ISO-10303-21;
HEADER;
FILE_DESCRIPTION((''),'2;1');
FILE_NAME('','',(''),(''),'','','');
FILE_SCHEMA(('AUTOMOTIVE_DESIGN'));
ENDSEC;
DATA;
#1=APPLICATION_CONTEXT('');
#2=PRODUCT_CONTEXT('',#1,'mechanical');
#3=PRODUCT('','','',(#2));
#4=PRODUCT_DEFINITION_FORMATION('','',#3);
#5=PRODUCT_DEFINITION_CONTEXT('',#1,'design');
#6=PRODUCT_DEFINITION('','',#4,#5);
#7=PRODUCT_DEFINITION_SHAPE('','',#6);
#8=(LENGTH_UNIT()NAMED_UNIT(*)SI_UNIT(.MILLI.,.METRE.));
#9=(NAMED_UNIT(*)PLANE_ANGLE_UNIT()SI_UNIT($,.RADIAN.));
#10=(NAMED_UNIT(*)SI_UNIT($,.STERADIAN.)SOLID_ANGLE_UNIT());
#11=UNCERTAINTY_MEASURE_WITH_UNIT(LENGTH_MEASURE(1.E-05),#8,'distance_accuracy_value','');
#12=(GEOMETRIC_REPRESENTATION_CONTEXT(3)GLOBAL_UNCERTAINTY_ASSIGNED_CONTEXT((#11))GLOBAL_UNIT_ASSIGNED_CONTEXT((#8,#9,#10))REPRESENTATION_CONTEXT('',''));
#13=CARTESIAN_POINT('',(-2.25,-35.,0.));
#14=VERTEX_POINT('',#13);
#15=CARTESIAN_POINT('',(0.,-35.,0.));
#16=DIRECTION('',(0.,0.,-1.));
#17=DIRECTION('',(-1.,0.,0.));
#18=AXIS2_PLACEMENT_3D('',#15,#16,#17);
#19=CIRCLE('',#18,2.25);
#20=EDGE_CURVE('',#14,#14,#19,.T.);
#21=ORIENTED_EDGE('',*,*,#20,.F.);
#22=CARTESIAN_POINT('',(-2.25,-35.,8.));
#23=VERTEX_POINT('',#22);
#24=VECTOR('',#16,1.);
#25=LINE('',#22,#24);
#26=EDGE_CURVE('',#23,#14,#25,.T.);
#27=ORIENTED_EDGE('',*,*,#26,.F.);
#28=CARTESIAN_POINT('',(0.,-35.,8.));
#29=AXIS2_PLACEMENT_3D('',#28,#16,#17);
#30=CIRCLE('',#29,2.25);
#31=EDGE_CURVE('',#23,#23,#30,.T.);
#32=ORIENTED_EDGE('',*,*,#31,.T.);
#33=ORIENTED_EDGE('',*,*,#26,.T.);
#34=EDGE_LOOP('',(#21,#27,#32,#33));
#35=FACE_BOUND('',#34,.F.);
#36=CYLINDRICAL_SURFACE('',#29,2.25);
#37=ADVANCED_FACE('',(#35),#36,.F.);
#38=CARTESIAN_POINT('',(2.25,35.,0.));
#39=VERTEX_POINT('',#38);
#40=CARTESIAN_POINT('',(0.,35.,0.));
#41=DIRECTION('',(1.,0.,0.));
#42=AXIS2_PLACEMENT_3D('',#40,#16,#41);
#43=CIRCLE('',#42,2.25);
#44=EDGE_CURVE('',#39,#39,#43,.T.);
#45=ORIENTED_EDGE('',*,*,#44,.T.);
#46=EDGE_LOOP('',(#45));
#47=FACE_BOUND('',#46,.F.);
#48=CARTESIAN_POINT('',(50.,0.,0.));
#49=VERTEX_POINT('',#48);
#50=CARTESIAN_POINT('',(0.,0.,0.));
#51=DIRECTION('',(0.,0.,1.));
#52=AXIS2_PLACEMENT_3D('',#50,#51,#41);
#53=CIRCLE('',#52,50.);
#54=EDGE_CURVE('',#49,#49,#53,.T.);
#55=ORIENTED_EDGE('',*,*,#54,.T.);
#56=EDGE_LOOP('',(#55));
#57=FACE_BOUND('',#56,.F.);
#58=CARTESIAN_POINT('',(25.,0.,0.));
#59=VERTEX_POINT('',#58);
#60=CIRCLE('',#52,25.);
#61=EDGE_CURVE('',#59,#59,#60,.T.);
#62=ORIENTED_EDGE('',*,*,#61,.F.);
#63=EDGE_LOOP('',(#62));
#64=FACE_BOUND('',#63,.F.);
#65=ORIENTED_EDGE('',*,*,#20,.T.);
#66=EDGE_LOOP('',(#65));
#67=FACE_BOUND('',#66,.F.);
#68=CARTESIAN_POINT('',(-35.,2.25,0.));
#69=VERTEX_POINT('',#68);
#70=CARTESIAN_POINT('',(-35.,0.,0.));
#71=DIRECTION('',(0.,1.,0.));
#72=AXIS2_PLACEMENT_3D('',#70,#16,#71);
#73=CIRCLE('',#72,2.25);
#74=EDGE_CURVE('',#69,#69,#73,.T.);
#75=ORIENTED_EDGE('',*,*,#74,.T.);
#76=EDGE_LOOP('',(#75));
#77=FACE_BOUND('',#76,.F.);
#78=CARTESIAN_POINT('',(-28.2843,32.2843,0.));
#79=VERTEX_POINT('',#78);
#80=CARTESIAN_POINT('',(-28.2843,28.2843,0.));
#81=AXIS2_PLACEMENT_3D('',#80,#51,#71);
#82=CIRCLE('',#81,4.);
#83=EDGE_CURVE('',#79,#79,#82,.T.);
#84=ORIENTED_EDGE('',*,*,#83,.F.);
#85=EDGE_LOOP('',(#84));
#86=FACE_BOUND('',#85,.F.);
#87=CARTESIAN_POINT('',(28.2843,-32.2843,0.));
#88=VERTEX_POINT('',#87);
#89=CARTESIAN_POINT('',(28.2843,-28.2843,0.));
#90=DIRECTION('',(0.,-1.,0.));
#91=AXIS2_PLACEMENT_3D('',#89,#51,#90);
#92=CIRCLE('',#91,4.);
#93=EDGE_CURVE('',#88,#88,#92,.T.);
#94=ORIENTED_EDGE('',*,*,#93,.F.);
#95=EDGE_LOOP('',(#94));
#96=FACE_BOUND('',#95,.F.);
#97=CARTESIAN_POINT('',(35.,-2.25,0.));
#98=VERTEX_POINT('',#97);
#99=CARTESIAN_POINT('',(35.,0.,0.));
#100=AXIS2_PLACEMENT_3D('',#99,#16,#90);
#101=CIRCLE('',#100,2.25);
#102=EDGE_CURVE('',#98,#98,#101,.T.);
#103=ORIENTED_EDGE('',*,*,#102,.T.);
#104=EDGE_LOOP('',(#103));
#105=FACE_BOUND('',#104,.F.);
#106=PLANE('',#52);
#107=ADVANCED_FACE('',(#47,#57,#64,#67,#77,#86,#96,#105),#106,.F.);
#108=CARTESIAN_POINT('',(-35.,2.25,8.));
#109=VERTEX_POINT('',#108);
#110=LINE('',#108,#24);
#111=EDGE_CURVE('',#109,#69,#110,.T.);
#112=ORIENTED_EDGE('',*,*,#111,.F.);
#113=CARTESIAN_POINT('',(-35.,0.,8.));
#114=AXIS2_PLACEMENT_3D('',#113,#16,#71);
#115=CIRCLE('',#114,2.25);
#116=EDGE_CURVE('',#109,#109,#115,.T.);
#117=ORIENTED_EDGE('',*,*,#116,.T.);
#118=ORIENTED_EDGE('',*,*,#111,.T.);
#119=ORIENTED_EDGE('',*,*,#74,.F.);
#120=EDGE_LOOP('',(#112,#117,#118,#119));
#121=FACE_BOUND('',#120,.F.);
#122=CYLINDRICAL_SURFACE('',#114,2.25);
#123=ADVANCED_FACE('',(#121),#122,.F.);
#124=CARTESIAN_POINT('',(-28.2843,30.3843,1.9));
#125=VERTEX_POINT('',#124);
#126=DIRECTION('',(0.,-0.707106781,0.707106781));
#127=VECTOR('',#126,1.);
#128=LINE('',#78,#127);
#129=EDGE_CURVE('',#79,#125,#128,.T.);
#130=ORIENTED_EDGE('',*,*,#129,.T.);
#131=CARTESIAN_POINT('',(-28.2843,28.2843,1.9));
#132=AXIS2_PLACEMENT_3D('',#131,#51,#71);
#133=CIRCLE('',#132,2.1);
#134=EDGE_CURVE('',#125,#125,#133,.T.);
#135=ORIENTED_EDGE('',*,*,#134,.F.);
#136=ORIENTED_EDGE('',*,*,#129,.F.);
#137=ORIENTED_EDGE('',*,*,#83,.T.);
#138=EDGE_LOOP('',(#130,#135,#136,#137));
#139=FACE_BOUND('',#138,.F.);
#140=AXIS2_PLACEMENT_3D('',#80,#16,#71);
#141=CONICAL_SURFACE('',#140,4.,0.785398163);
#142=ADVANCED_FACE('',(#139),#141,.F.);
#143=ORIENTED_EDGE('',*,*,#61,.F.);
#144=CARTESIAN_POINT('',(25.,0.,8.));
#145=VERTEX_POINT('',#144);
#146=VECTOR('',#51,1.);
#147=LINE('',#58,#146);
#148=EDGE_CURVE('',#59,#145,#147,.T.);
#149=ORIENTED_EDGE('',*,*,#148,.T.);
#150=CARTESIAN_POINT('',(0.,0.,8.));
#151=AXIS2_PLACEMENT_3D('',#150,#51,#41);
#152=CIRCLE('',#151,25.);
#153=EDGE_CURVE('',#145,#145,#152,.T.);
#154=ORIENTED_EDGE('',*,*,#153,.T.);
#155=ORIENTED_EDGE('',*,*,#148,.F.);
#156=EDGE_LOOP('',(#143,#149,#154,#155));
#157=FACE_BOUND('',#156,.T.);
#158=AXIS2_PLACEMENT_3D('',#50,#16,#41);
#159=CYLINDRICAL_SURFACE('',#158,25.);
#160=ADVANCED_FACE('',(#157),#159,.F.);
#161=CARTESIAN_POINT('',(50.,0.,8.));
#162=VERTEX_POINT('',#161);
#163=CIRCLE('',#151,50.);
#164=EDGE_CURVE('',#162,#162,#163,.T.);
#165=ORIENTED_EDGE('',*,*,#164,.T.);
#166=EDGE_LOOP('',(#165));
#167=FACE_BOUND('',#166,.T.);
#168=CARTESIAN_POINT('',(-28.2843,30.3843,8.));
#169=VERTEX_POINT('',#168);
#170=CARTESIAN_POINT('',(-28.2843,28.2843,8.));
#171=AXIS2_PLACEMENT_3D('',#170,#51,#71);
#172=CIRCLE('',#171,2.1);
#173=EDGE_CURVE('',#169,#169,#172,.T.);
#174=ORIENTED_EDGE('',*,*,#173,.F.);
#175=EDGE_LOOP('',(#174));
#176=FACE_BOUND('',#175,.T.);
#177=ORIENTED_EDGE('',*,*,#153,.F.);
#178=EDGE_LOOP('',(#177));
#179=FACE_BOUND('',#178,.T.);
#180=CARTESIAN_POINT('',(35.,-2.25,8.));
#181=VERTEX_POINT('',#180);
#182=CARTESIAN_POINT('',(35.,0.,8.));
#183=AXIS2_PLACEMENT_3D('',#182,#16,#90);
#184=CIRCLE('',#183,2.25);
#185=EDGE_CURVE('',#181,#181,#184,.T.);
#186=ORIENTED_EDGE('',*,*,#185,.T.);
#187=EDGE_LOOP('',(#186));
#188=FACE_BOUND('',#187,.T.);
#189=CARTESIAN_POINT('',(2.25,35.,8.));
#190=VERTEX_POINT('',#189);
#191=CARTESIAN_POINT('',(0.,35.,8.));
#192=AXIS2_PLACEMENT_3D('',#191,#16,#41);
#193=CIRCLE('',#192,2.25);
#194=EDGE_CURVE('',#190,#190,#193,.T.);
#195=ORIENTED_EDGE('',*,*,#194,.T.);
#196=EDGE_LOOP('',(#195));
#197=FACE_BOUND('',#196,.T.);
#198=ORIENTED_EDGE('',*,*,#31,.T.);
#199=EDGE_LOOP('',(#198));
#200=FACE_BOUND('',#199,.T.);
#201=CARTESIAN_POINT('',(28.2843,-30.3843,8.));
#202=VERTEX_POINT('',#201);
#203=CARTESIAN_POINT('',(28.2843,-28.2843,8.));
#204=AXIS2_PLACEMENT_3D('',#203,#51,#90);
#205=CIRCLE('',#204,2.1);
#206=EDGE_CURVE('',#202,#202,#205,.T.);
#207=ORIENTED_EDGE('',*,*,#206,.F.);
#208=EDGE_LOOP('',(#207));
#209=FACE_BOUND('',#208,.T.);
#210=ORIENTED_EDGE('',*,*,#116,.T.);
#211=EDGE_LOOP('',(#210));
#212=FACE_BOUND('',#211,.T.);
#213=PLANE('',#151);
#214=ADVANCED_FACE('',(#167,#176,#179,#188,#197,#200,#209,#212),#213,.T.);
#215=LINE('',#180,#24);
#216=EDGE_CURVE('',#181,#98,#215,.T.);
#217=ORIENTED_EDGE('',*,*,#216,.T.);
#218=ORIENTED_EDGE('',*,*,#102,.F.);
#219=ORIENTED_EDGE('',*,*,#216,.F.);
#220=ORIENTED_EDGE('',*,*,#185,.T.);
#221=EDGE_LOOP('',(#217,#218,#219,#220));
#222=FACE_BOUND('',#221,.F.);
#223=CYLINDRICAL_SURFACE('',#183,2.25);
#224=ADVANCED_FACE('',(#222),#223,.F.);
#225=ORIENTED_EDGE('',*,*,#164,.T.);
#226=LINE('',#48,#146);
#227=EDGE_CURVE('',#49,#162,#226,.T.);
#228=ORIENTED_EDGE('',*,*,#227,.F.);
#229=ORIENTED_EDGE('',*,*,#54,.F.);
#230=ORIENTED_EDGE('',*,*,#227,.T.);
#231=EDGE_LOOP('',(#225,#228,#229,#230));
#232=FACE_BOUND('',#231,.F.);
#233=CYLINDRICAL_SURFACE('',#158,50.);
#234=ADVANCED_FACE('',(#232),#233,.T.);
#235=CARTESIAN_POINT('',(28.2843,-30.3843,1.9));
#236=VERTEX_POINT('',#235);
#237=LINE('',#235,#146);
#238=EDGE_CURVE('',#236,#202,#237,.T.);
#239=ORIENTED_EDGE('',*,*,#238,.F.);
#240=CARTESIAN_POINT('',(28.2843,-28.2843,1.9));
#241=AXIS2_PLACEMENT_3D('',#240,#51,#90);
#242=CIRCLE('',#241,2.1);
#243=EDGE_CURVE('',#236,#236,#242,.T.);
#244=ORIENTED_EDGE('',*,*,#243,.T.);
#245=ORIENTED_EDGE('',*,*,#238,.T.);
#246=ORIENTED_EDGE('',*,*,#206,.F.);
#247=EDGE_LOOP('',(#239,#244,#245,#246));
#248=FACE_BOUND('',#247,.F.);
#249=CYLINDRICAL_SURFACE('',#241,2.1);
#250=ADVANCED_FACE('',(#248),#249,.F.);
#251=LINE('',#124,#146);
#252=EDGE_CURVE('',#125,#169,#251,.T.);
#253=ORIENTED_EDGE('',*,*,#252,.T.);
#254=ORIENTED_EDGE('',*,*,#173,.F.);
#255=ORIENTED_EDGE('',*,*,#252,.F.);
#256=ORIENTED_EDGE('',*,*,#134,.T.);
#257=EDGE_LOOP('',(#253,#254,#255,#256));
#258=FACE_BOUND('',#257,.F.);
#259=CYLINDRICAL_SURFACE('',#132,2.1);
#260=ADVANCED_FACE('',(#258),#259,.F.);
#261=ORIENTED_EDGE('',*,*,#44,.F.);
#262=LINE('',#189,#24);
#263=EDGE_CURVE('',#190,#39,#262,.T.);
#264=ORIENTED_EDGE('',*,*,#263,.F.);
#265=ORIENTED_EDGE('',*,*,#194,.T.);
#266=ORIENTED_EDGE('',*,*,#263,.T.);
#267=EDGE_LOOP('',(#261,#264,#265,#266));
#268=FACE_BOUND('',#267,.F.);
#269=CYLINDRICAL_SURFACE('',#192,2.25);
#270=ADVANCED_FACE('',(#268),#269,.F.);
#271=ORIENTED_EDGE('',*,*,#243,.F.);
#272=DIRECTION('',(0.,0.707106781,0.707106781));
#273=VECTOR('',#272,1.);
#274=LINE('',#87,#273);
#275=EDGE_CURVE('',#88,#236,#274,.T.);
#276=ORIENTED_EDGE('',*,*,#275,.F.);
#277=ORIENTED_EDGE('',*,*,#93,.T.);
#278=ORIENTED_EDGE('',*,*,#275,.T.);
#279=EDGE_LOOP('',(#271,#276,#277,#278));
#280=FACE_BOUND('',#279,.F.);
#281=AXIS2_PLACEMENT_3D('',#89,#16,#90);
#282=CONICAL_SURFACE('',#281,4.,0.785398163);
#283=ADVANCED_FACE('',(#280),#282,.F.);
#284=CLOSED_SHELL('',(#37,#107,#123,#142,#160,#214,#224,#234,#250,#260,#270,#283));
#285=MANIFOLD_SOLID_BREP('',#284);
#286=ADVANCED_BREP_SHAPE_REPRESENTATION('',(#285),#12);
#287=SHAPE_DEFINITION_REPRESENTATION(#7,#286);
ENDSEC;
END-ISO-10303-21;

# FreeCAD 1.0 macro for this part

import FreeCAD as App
import Part
import Sketcher
from FreeCAD import Vector
Q = App.Units.Quantity

doc = App.newDocument("Part")
body = doc.addObject("PartDesign::Body", "Body")

# Sketch on XY plane
sketch1 = doc.addObject("Sketcher::SketchObject", "Sketch")
body.addObject(sketch1)
sketch1.AttachmentSupport = (doc.XY_Plane, [""])
sketch1.MapMode = "FlatFace"
sketch1.addGeometry([
    Part.Circle(Vector(0, 0, 0), Vector(0, 0, 1), 50),
    Part.Circle(Vector(0, 0, 0), Vector(0, 0, 1), 25),
], False)
sketch1.addConstraint([
    Sketcher.Constraint("Coincident", 0, 3, -1, 1),
    Sketcher.Constraint("Coincident", 1, 3, -1, 1),
    Sketcher.Constraint("Diameter", 0, Q("100 mm")),
    Sketcher.Constraint("Diameter", 1, Q("50 mm")),
])
pad1 = doc.addObject("PartDesign::Pad", "Pad")
body.addObject(pad1)
pad1.Profile = sketch1
pad1.Length = 8

# Sketch on XY plane
sketch2 = doc.addObject("Sketcher::SketchObject", "Sketch001")
body.addObject(sketch2)
sketch2.AttachmentSupport = (doc.XY_Plane, [""])
sketch2.MapMode = "FlatFace"
sketch2.AttachmentOffset = App.Placement(Vector(0, 0, 8), App.Rotation())
sketch2.addGeometry(Part.Circle(Vector(35, 0, 0), Vector(0, 0, 1), 2.2), False)
sketch2.addConstraint([
    Sketcher.Constraint("PointOnObject", 0, 3, -1),
    Sketcher.Constraint("Diameter", 0, Q("4.5 mm")),
    Sketcher.Constraint("DistanceX", -1, 1, 0, 3, Q("35 mm")),
])
doc.recompute()
hole = doc.addObject("PartDesign::Hole", "Hole")
body.addObject(hole)
hole.Profile = sketch2
hole.ThreadType = "None"
hole.Diameter = 4.5
hole.DepthType = "Dimension"
hole.Depth = 8
hole.DrillPoint = "Angled"
hole.DrillPointAngle = 118
doc.recompute()

polarpattern = doc.addObject("PartDesign::PolarPattern", "PolarPattern")
body.addObject(polarpattern)
polarpattern.Originals = [hole]
polarpattern.Axis = (doc.Z_Axis, [""])
polarpattern.Angle = 360
polarpattern.Occurrences = 4
body.Tip = polarpattern

# Sketch on XY plane
sketch3 = doc.addObject("Sketcher::SketchObject", "Sketch002")
body.addObject(sketch3)
sketch3.AttachmentSupport = (doc.XY_Plane, [""])
sketch3.MapMode = "FlatFace"
sketch3.addGeometry(Part.Circle(Vector(-28.3, 28.3, 0), Vector(0, 0, 1), 2.1), False)
sketch3.addConstraint([
    Sketcher.Constraint("Diameter", 0, Q("4.2 mm")),
    Sketcher.Constraint("DistanceX", 0, 3, -1, 1, Q("28.2843 mm")),
    Sketcher.Constraint("DistanceY", -1, 1, 0, 3, Q("28.2843 mm")),
])
doc.recompute()
hole2 = doc.addObject("PartDesign::Hole", "Hole001")
body.addObject(hole2)
hole2.Profile = sketch3
hole2.ThreadType = "None"
hole2.Diameter = 4.2
hole2.DepthType = "Dimension"
hole2.Depth = 8
hole2.DrillPoint = "Angled"
hole2.DrillPointAngle = 118
hole2.HoleCutType = "Countersink"
hole2.HoleCutDiameter = 8
hole2.HoleCutCountersinkAngle = 90
hole2.Reversed = True
doc.recompute()

polarpattern2 = doc.addObject("PartDesign::PolarPattern", "PolarPattern001")
body.addObject(polarpattern2)
polarpattern2.Originals = [hole2]
polarpattern2.Axis = (doc.Z_Axis, [""])
polarpattern2.Angle = 360
polarpattern2.Occurrences = 2
body.Tip = polarpattern2

doc.recompute()
